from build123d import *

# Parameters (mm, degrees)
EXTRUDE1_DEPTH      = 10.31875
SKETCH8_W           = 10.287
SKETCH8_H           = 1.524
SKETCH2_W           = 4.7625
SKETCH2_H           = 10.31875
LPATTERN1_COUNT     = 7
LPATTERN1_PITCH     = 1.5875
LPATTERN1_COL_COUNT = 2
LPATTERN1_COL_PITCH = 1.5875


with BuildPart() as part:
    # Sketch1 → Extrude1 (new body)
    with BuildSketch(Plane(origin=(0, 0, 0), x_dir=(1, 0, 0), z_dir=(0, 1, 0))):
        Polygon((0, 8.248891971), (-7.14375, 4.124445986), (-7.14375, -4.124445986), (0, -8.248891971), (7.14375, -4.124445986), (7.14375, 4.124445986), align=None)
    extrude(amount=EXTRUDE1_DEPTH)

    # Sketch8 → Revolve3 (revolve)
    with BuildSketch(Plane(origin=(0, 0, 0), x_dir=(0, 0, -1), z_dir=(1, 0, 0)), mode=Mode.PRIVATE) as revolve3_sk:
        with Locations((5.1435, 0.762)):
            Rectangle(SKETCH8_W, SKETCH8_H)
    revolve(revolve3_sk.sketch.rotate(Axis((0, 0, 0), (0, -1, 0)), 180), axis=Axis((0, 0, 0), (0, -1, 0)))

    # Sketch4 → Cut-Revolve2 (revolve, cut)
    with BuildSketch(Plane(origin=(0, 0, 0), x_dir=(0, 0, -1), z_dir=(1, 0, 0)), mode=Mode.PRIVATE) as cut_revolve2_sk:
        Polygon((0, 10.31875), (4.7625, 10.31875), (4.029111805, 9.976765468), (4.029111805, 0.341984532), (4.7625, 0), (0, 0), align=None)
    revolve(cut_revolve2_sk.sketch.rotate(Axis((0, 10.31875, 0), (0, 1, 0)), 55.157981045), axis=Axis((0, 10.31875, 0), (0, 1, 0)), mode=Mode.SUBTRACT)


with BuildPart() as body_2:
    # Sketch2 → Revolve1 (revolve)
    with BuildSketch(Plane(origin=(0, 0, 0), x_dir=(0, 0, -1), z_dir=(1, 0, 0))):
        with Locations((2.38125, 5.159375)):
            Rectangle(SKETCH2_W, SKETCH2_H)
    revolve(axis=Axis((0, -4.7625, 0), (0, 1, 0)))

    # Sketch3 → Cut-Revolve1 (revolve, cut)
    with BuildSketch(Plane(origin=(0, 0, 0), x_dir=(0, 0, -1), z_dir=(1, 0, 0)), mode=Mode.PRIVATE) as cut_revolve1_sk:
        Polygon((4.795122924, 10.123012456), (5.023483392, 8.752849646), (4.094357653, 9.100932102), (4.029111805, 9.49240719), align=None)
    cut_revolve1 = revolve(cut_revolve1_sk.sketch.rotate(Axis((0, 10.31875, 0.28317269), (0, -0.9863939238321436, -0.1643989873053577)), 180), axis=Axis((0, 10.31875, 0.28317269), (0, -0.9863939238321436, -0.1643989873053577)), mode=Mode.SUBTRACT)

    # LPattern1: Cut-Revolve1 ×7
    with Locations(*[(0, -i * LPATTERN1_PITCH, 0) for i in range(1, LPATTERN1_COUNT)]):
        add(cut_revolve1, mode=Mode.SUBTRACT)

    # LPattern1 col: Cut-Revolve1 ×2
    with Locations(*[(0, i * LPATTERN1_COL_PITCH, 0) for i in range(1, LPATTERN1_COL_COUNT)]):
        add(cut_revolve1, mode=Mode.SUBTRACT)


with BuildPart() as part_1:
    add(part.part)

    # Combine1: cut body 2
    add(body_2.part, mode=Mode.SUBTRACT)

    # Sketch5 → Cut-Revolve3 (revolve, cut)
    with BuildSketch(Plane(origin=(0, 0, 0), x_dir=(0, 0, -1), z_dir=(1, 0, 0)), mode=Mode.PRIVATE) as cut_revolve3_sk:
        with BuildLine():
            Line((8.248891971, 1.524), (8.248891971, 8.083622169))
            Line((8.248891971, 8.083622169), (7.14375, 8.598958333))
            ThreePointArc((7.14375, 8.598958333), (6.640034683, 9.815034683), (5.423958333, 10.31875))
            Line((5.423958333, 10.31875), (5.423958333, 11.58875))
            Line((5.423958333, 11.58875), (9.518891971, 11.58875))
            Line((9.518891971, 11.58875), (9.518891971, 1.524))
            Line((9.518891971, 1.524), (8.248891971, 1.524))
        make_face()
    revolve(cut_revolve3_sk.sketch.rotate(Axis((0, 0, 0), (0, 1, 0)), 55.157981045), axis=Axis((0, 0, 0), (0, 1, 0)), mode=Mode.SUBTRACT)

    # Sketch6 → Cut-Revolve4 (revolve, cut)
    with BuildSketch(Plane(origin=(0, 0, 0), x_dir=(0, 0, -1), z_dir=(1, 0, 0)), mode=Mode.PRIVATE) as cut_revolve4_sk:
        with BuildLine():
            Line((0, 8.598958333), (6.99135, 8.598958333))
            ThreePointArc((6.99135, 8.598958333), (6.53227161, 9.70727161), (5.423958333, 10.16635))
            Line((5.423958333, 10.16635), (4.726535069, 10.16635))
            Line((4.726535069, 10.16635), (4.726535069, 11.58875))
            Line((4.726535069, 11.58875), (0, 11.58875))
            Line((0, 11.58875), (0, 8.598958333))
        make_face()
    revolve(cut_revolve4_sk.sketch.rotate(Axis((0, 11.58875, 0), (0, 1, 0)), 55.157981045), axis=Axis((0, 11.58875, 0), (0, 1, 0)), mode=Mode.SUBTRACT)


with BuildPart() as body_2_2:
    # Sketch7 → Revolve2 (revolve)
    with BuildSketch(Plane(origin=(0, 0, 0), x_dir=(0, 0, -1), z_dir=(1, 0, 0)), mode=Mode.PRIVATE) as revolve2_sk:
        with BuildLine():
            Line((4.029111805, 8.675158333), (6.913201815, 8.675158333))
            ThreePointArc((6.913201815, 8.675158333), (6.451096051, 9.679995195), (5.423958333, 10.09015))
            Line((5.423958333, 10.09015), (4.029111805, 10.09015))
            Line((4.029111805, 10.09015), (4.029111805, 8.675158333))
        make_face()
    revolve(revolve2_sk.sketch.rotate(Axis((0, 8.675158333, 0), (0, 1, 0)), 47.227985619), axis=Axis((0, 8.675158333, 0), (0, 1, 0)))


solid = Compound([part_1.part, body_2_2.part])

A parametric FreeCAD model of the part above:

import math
import FreeCAD as App
import Part
import Sketcher
from FreeCAD import Vector
Q = App.Units.Quantity

doc = App.newDocument("Part")
body = doc.addObject("PartDesign::Body", "Body")

# Sketch on XZ plane
sketch1 = doc.addObject("Sketcher::SketchObject", "Sketch")
body.addObject(sketch1)
sketch1.AttachmentSupport = (doc.XZ_Plane, [""])
sketch1.MapMode = "FlatFace"
sketch1.addGeometry(Part.LineSegment(Vector(0, -8.248892, 0), Vector(-7.14375, -4.124446, 0)), False)
sketch1.addGeometry(Part.LineSegment(Vector(-7.14375, -4.124446, 0), Vector(-7.14375, 4.124446, 0)), False)
sketch1.addGeometry(Part.LineSegment(Vector(-7.14375, 4.124446, 0), Vector(0, 8.248892, 0)), False)
sketch1.addGeometry(Part.LineSegment(Vector(0, 8.248892, 0), Vector(7.14375, 4.124446, 0)), False)
sketch1.addGeometry(Part.LineSegment(Vector(7.14375, 4.124446, 0), Vector(7.14375, -4.124446, 0)), False)
sketch1.addGeometry(Part.LineSegment(Vector(7.14375, -4.124446, 0), Vector(0, -8.248892, 0)), False)
sketch1.addConstraint(Sketcher.Constraint("Coincident", 0, 2, 1, 1))
sketch1.addConstraint(Sketcher.Constraint("Coincident", 1, 2, 2, 1))
sketch1.addConstraint(Sketcher.Constraint("Coincident", 2, 2, 3, 1))
sketch1.addConstraint(Sketcher.Constraint("Coincident", 3, 2, 4, 1))
sketch1.addConstraint(Sketcher.Constraint("Coincident", 4, 2, 5, 1))
sketch1.addConstraint(Sketcher.Constraint("Coincident", 5, 2, 0, 1))
sketch1.addConstraint(Sketcher.Constraint("Vertical", 1))
sketch1.addConstraint(Sketcher.Constraint("Vertical", 4))
sketch1.addConstraint(Sketcher.Constraint("Symmetric", 0, 2, 3, 2, -1, 1))
sketch1.addConstraint(Sketcher.Constraint("Symmetric", 2, 2, 5, 2, -1, 1))
sketch1.addConstraint(Sketcher.Constraint("PointOnObject", 2, 2, -2))
sketch1.addConstraint(Sketcher.Constraint("Parallel", 2, 5))
sketch1.addConstraint(Sketcher.Constraint("Horizontal", 1, 2, 3, 2))
sketch1.addConstraint(Sketcher.Constraint("Angle", 0, Q("150 deg")))
sketch1.addConstraint(Sketcher.Constraint("DistanceX", 0, 2, -1, 1, Q("0.28125 in")))
sketch1.addConstraint(Sketcher.Constraint("DistanceY", 1, 1, 1, 2, 8.248892))
pad1 = doc.addObject("PartDesign::Pad", "Pad")
body.addObject(pad1)
pad1.Profile = sketch1
pad1.Length = Q("0.40625 in")
pad1.Reversed = True

# Sketch on YZ plane
sketch2 = doc.addObject("Sketcher::SketchObject", "Sketch001")
body.addObject(sketch2)
sketch2.AttachmentSupport = (doc.YZ_Plane, [""])
sketch2.MapMode = "FlatFace"
sketch2.addGeometry(Part.LineSegment(Vector(1.524, 0, 0), Vector(0, 0, 0)), False)
sketch2.addGeometry(Part.LineSegment(Vector(0, 0, 0), Vector(0, -10.287, 0)), False)
sketch2.addGeometry(Part.LineSegment(Vector(0, -10.287, 0), Vector(1.524, -10.287, 0)), False)
sketch2.addGeometry(Part.LineSegment(Vector(1.524, -10.287, 0), Vector(1.524, 0, 0)), False)
sketch2.addConstraint(Sketcher.Constraint("Coincident", 0, 2, 1, 1))
sketch2.addConstraint(Sketcher.Constraint("Coincident", 1, 2, 2, 1))
sketch2.addConstraint(Sketcher.Constraint("Coincident", 2, 2, 3, 1))
sketch2.addConstraint(Sketcher.Constraint("Coincident", 3, 2, 0, 1))
sketch2.addConstraint(Sketcher.Constraint("Horizontal", 0))
sketch2.addConstraint(Sketcher.Constraint("Vertical", 1))
sketch2.addConstraint(Sketcher.Constraint("Horizontal", 2))
sketch2.addConstraint(Sketcher.Constraint("Vertical", 3))
sketch2.addConstraint(Sketcher.Constraint("Coincident", 0, 2, -1, 1))
sketch2.addConstraint(Sketcher.Constraint("DistanceX", 0, 2, 0, 1, Q("0.06 in")))
sketch2.addConstraint(Sketcher.Constraint("DistanceY", 1, 2, 1, 1, Q("0.405 in")))
revolution = doc.addObject("PartDesign::Revolution", "Revolution")
body.addObject(revolution)
revolution.Profile = sketch2
revolution.ReferenceAxis = (sketch2, ["H_Axis"])
revolution.Angle = 360

# Sketch on YZ plane
sketch3 = doc.addObject("Sketcher::SketchObject", "Sketch002")
body.addObject(sketch3)
sketch3.AttachmentSupport = (doc.YZ_Plane, [""])
sketch3.MapMode = "FlatFace"
sketch3.addGeometry(Part.LineSegment(Vector(10.31875, -4.7625, 0), Vector(10.31875, 0, 0)), False)
sketch3.addGeometry(Part.LineSegment(Vector(10.31875, 0, 0), Vector(0, 0, 0)), False)
sketch3.addGeometry(Part.LineSegment(Vector(0, 0, 0), Vector(0, -4.7625, 0)), False)
sketch3.addGeometry(Part.LineSegment(Vector(0, -4.7625, 0), Vector(0.341985, -4.029112, 0)), False)
sketch3.addGeometry(Part.LineSegment(Vector(0.341985, -4.029112, 0), Vector(9.976765, -4.029112, 0)), False)
sketch3.addGeometry(Part.LineSegment(Vector(9.976765, -4.029112, 0), Vector(10.31875, -4.7625, 0)), False)
sketch3.addConstraint(Sketcher.Constraint("Coincident", 0, 2, 1, 1))
sketch3.addConstraint(Sketcher.Constraint("Coincident", 1, 2, 2, 1))
sketch3.addConstraint(Sketcher.Constraint("Coincident", 2, 2, 3, 1))
sketch3.addConstraint(Sketcher.Constraint("Coincident", 3, 2, 4, 1))
sketch3.addConstraint(Sketcher.Constraint("Coincident", 4, 2, 5, 1))
sketch3.addConstraint(Sketcher.Constraint("Coincident", 5, 2, 0, 1))
sketch3.addConstraint(Sketcher.Constraint("Vertical", 0))
sketch3.addConstraint(Sketcher.Constraint("Horizontal", 1))
sketch3.addConstraint(Sketcher.Constraint("Vertical", 2))
sketch3.addConstraint(Sketcher.Constraint("Horizontal", 4))
sketch3.addConstraint(Sketcher.Constraint("Coincident", 1, 2, -1, 1))
sketch3.addConstraint(Sketcher.Constraint("Horizontal", 2, 2, 5, 2))
sketch3.addConstraint(Sketcher.Constraint("Equal", 3, 5))
sketch3.addConstraint(Sketcher.Constraint("Angle", 3, Q("65 deg")))
sketch3.addConstraint(Sketcher.Constraint("DistanceX", 1, 2, 1, 1, Q("0.40625 in")))
sketch3.addConstraint(Sketcher.Constraint("DistanceY", 0, 1, 0, 2, Q("0.1875 in")))
sketch3.addConstraint(Sketcher.Constraint("DistanceX", 4, 1, 4, 2, 9.634781))
groove = doc.addObject("PartDesign::Groove", "Groove")
body.addObject(groove)
groove.Profile = sketch3
groove.ReferenceAxis = (sketch3, ["H_Axis"])
groove.Angle = 360
body2 = doc.addObject("PartDesign::Body", "Body001")

# Sketch on YZ plane
sketch4 = doc.addObject("Sketcher::SketchObject", "Sketch003")
body2.addObject(sketch4)
sketch4.AttachmentSupport = (doc.getObject("YZ_Plane001"), [""])
sketch4.MapMode = "FlatFace"
sketch4.addGeometry(Part.LineSegment(Vector(10.31875, 0, 0), Vector(0, 0, 0)), False)
sketch4.addGeometry(Part.LineSegment(Vector(0, 0, 0), Vector(0, -4.7625, 0)), False)
sketch4.addGeometry(Part.LineSegment(Vector(0, -4.7625, 0), Vector(10.31875, -4.7625, 0)), False)
sketch4.addGeometry(Part.LineSegment(Vector(10.31875, -4.7625, 0), Vector(10.31875, 0, 0)), False)
sketch4.addConstraint(Sketcher.Constraint("Coincident", 0, 2, 1, 1))
sketch4.addConstraint(Sketcher.Constraint("Coincident", 1, 2, 2, 1))
sketch4.addConstraint(Sketcher.Constraint("Coincident", 2, 2, 3, 1))
sketch4.addConstraint(Sketcher.Constraint("Coincident", 3, 2, 0, 1))
sketch4.addConstraint(Sketcher.Constraint("Horizontal", 0))
sketch4.addConstraint(Sketcher.Constraint("Vertical", 1))
sketch4.addConstraint(Sketcher.Constraint("Horizontal", 2))
sketch4.addConstraint(Sketcher.Constraint("Vertical", 3))
sketch4.addConstraint(Sketcher.Constraint("Coincident", 0, 2, -1, 1))
sketch4.addConstraint(Sketcher.Constraint("DistanceX", 0, 2, 0, 1, Q("0.40625 in")))
sketch4.addConstraint(Sketcher.Constraint("DistanceY", 1, 2, 1, 1, Q("0.1875 in")))
revolution2 = doc.addObject("PartDesign::Revolution", "Revolution001")
body2.addObject(revolution2)
revolution2.Profile = sketch4
revolution2.ReferenceAxis = (sketch4, ["H_Axis"])
revolution2.Angle = 360

# Sketch on YZ plane
sketch5 = doc.addObject("Sketcher::SketchObject", "Sketch004")
body2.addObject(sketch5)
sketch5.AttachmentSupport = (doc.getObject("YZ_Plane001"), [""])
sketch5.MapMode = "FlatFace"
sketch5.addGeometry(Part.LineSegment(Vector(8.75285, -5.023483, 0), Vector(10.123012, -4.795123, 0)), False)
sketch5.addGeometry(Part.LineSegment(Vector(10.123012, -4.795123, 0), Vector(9.492407, -4.029112, 0)), False)
sketch5.addGeometry(Part.LineSegment(Vector(9.492407, -4.029112, 0), Vector(9.100932, -4.094358, 0)), False)
sketch5.addGeometry(Part.LineSegment(Vector(9.100932, -4.094358, 0), Vector(8.75285, -5.023483, 0)), False)
sketch5.addGeometry(Part.LineSegment(Vector(9.304795, 0.11418, 0), Vector(7.934632, -0.11418, 0)), True)  # axis
sketch5.addConstraint(Sketcher.Constraint("Coincident", 0, 2, 1, 1))
sketch5.addConstraint(Sketcher.Constraint("Coincident", 1, 2, 2, 1))
sketch5.addConstraint(Sketcher.Constraint("Coincident", 2, 2, 3, 1))
sketch5.addConstraint(Sketcher.Constraint("Coincident", 3, 2, 0, 1))
sketch5.addConstraint(Sketcher.Constraint("Parallel", 0, 2))
sketch5.addConstraint(Sketcher.Constraint("Parallel", 2, 4))
sketch5.addConstraint(Sketcher.Constraint("Equal", 1, 3))
sketch5.addConstraint(Sketcher.Constraint("Equal", 0, 4))
sketch5.addConstraint(Sketcher.Constraint("Distance", 2, Q("0.015625 in")))
sketch5.addConstraint(Sketcher.Constraint("DistanceY", 2, 2, 4, 2, Q("0.1566999 in")))
sketch5.addConstraint(Sketcher.Constraint("DistanceX", 4, 2, 2, 2, 1.1663))
sketch5.addConstraint(Sketcher.Constraint("DistanceY", 1, 2, -1, 1, 4.029112))
sketch5.addConstraint(Sketcher.Constraint("DistanceX", -1, 1, 3, 2, 8.75285))
sketch5.addConstraint(Sketcher.Constraint("DistanceY", -1, 1, 4, 1, 0.11418))
sketch5.addConstraint(Sketcher.Constraint("DistanceY", 4, 2, -1, 1, 0.11418))
sketch5.addConstraint(Sketcher.Constraint("DistanceY", 0, 2, 1, 2, 0.766011))
groove2 = doc.addObject("PartDesign::Groove", "Groove001")
body2.addObject(groove2)
groove2.Profile = sketch5
groove2.ReferenceAxis = (sketch5, ["Axis0"])
groove2.Angle = 360
doc.recompute()

linearpattern = doc.addObject("PartDesign::LinearPattern", "LinearPattern")
body2.addObject(linearpattern)
linearpattern.Originals = [groove2]
linearpattern.Direction = (doc.getObject("Y_Axis001"), [""])
linearpattern.Mode = "offset"
linearpattern.Offset = Q("0.0625 in")
linearpattern.Occurrences = 7
linearpattern.Reversed = True
body2.Tip = linearpattern
doc.recompute()

linearpattern2 = doc.addObject("PartDesign::LinearPattern", "LinearPattern001")
body2.addObject(linearpattern2)
linearpattern2.Originals = [groove2]
linearpattern2.Direction = (doc.getObject("Y_Axis001"), [""])
linearpattern2.Mode = "offset"
linearpattern2.Offset = Q("0.0625 in")
linearpattern2.Occurrences = 2
body2.Tip = linearpattern2
doc.recompute()

boolean = doc.addObject("PartDesign::Boolean", "Boolean")
body.addObject(boolean)
boolean.Type = "Cut"
boolean.addObjects([body2])

# Sketch on YZ plane
sketch6 = doc.addObject("Sketcher::SketchObject", "Sketch005")
body.addObject(sketch6)
sketch6.AttachmentSupport = (doc.YZ_Plane, [""])
sketch6.MapMode = "FlatFace"
sketch6.addGeometry(Part.LineSegment(Vector(8.083622, -8.248892, 0), Vector(1.524, -8.248892, 0)), False)
sketch6.addGeometry(Part.LineSegment(Vector(1.524, -8.248892, 0), Vector(1.524, -9.518892, 0)), False)
sketch6.addGeometry(Part.LineSegment(Vector(1.524, -9.518892, 0), Vector(11.58875, -9.518892, 0)), False)
sketch6.addGeometry(Part.LineSegment(Vector(11.58875, -9.518892, 0), Vector(11.58875, -5.423958, 0)), False)
sketch6.addGeometry(Part.LineSegment(Vector(11.58875, -5.423958, 0), Vector(10.31875, -5.423958, 0)), False)
sketch6.addGeometry(Part.ArcOfCircle(Part.Circle(Vector(8.598958, -5.423958, 0), Vector(0, 0, 1), 1.719792), math.radians(-90), math.radians(0)), False)
sketch6.addGeometry(Part.LineSegment(Vector(8.598958, -7.14375, 0), Vector(8.083622, -8.248892, 0)), False)
sketch6.addConstraint(Sketcher.Constraint("Coincident", 0, 2, 1, 1))
sketch6.addConstraint(Sketcher.Constraint("Coincident", 1, 2, 2, 1))
sketch6.addConstraint(Sketcher.Constraint("Coincident", 2, 2, 3, 1))
sketch6.addConstraint(Sketcher.Constraint("Coincident", 3, 2, 4, 1))
sketch6.addConstraint(Sketcher.Constraint("Coincident", 4, 2, 5, 2))
sketch6.addConstraint(Sketcher.Constraint("Coincident", 5, 1, 6, 1))
sketch6.addConstraint(Sketcher.Constraint("Coincident", 6, 2, 0, 1))
sketch6.addConstraint(Sketcher.Constraint("Horizontal", 0))
sketch6.addConstraint(Sketcher.Constraint("Vertical", 1))
sketch6.addConstraint(Sketcher.Constraint("Horizontal", 2))
sketch6.addConstraint(Sketcher.Constraint("Vertical", 3))
sketch6.addConstraint(Sketcher.Constraint("Horizontal", 4))
sketch6.addConstraint(Sketcher.Constraint("Horizontal", 5, 3, 3, 2))
sketch6.addConstraint(Sketcher.Constraint("Equal", 4, 1))
sketch6.addConstraint(Sketcher.Constraint("Angle", 6, Q("-115 deg")))
sketch6.addConstraint(Sketcher.Constraint("DistanceX", 4, 2, 4, 1, Q("0.05 in")))
sketch6.addConstraint(Sketcher.Constraint("DistanceX", -1, 1, 0, 2, Q("0.06 in")))
sketch6.addConstraint(Sketcher.Constraint("DistanceX", -1, 1, 4, 2, Q("0.40625 in")))
sketch6.addConstraint(Sketcher.Constraint("DistanceY", 5, 1, -1, 1, Q("0.28125 in")))
sketch6.addConstraint(Sketcher.Constraint("Radius", 5, 1.719792))
sketch6.addConstraint(Sketcher.Constraint("Distance", 6, 1.219389))
sketch6.addConstraint(Sketcher.Constraint("DistanceX", 0, 2, 0, 1, 6.559622))
groove3 = doc.addObject("PartDesign::Groove", "Groove002")
body.addObject(groove3)
groove3.Profile = sketch6
groove3.ReferenceAxis = (sketch6, ["H_Axis"])
groove3.Angle = 360

# Sketch on YZ plane
sketch7 = doc.addObject("Sketcher::SketchObject", "Sketch006")
body.addObject(sketch7)
sketch7.AttachmentSupport = (doc.YZ_Plane, [""])
sketch7.MapMode = "FlatFace"
sketch7.addGeometry(Part.LineSegment(Vector(8.598958, 0, 0), Vector(8.598958, -6.99135, 0)), False)
sketch7.addGeometry(Part.ArcOfCircle(Part.Circle(Vector(8.598958, -5.423958, 0), Vector(0, 0, 1), 1.567392), math.radians(-90), math.radians(0)), False)
sketch7.addGeometry(Part.LineSegment(Vector(10.16635, -5.423958, 0), Vector(10.16635, -4.726535, 0)), False)
sketch7.addGeometry(Part.LineSegment(Vector(10.16635, -4.726535, 0), Vector(11.58875, -4.726535, 0)), False)
sketch7.addGeometry(Part.LineSegment(Vector(11.58875, -4.726535, 0), Vector(11.58875, 0, 0)), False)
sketch7.addGeometry(Part.LineSegment(Vector(11.58875, 0, 0), Vector(8.598958, 0, 0)), False)
sketch7.addConstraint(Sketcher.Constraint("Coincident", 0, 2, 1, 1))
sketch7.addConstraint(Sketcher.Constraint("Tangent", 1, 2, 2, 1))
sketch7.addConstraint(Sketcher.Constraint("Coincident", 2, 2, 3, 1))
sketch7.addConstraint(Sketcher.Constraint("Coincident", 3, 2, 4, 1))
sketch7.addConstraint(Sketcher.Constraint("Coincident", 4, 2, 5, 1))
sketch7.addConstraint(Sketcher.Constraint("Coincident", 5, 2, 0, 1))
sketch7.addConstraint(Sketcher.Constraint("Vertical", 0))
sketch7.addConstraint(Sketcher.Constraint("Vertical", 2))
sketch7.addConstraint(Sketcher.Constraint("Horizontal", 3))
sketch7.addConstraint(Sketcher.Constraint("Vertical", 4))
sketch7.addConstraint(Sketcher.Constraint("Horizontal", 5))
sketch7.addConstraint(Sketcher.Constraint("PointOnObject", 4, 2, -1))
sketch7.addConstraint(Sketcher.Constraint("Vertical", 1, 3, 0, 2))
sketch7.addConstraint(Sketcher.Constraint("DistanceX", 3, 1, 3, 2, Q("0.056 in")))
sketch7.addConstraint(Sketcher.Constraint("Radius", 1, 1.567392))
sketch7.addConstraint(Sketcher.Constraint("DistanceY", 0, 2, 0, 1, 6.99135))
sketch7.addConstraint(Sketcher.Constraint("DistanceY", 2, 1, 2, 2, 0.697423))
sketch7.addConstraint(Sketcher.Constraint("DistanceX", -1, 1, 1, 3, 8.598958))
groove4 = doc.addObject("PartDesign::Groove", "Groove003")
body.addObject(groove4)
groove4.Profile = sketch7
groove4.ReferenceAxis = (sketch7, ["H_Axis"])
groove4.Angle = 360
body3 = doc.addObject("PartDesign::Body", "Body002")

# Sketch on YZ plane
sketch8 = doc.addObject("Sketcher::SketchObject", "Sketch007")
body3.addObject(sketch8)
sketch8.AttachmentSupport = (doc.getObject("YZ_Plane002"), [""])
sketch8.MapMode = "FlatFace"
sketch8.addGeometry(Part.LineSegment(Vector(8.675158, -4.029112, 0), Vector(8.675158, -6.913202, 0)), False)
sketch8.addGeometry(Part.ArcOfCircle(Part.Circle(Vector(8.598958, -5.423958, 0), Vector(0, 0, 1), 1.491192), math.radians(-87.070906), math.radians(0)), False)
sketch8.addGeometry(Part.LineSegment(Vector(10.09015, -5.423958, 0), Vector(10.09015, -4.029112, 0)), False)
sketch8.addGeometry(Part.LineSegment(Vector(10.09015, -4.029112, 0), Vector(8.675158, -4.029112, 0)), False)
sketch8.addConstraint(Sketcher.Constraint("Coincident", 0, 2, 1, 1))
sketch8.addConstraint(Sketcher.Constraint("Tangent", 1, 2, 2, 1))
sketch8.addConstraint(Sketcher.Constraint("Coincident", 2, 2, 3, 1))
sketch8.addConstraint(Sketcher.Constraint("Coincident", 3, 2, 0, 1))
sketch8.addConstraint(Sketcher.Constraint("Vertical", 0))
sketch8.addConstraint(Sketcher.Constraint("Vertical", 2))
sketch8.addConstraint(Sketcher.Constraint("Horizontal", 3))
sketch8.addConstraint(Sketcher.Constraint("Radius", 1, 1.491192))
sketch8.addConstraint(Sketcher.Constraint("DistanceX", 1, 3, 0, 2, Q("0.003 in")))
sketch8.addConstraint(Sketcher.Constraint("DistanceY", 0, 2, 0, 1, 2.88409))
sketch8.addConstraint(Sketcher.Constraint("DistanceY", 0, 2, -1, 1, 6.913202))
sketch8.addConstraint(Sketcher.Constraint("DistanceX", -1, 1, 1, 3, 8.598958))
revolution3 = doc.addObject("PartDesign::Revolution", "Revolution002")
body3.addObject(revolution3)
revolution3.Profile = sketch8
revolution3.ReferenceAxis = (sketch8, ["H_Axis"])
revolution3.Angle = 360

doc.recompute()
